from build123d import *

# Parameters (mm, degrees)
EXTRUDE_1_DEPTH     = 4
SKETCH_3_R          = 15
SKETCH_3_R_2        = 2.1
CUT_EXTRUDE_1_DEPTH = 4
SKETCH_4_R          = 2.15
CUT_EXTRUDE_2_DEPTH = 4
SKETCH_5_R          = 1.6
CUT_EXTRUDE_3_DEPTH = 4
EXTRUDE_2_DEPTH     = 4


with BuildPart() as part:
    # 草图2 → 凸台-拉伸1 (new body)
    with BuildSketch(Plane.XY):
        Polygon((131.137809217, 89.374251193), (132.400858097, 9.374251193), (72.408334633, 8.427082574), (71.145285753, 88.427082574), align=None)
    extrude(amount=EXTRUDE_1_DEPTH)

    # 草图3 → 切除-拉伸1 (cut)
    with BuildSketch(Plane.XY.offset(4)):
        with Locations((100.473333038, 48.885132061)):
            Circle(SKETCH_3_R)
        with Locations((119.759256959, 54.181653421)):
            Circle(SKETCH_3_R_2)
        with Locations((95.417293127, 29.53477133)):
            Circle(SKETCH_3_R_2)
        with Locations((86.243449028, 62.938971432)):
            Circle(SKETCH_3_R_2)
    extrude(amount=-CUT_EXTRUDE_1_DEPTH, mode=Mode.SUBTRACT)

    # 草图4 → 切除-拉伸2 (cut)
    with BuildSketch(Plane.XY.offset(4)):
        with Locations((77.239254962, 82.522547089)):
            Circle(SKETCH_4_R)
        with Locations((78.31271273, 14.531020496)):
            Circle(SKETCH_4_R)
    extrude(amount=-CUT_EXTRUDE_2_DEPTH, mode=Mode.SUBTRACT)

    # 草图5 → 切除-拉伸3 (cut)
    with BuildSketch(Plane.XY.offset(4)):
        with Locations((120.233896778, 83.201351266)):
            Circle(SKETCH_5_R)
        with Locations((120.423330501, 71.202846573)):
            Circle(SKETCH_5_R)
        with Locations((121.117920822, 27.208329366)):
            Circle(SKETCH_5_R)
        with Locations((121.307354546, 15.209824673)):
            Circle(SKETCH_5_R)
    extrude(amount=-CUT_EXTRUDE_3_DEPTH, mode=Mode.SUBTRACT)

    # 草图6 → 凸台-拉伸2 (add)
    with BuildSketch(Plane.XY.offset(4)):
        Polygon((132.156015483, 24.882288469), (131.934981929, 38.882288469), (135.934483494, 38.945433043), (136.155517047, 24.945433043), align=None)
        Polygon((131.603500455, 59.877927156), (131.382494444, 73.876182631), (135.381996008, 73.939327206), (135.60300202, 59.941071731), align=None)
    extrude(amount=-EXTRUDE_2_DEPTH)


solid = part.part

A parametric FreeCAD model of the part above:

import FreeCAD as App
import Part
import Sketcher
Q = App.Units.Quantity

doc = App.newDocument("Part")
body = doc.addObject("PartDesign::Body", "Body")

sketch1 = body.newObject("Sketcher::SketchObject", "Sketch")
sketch1.AttachmentSupport = (doc.getObject("XY_Plane"), [""])
sketch1.MapMode = "FlatFace"
sketch1.addGeometry(Part.LineSegment(App.Vector(132.400858, 9.374251, 0), App.Vector(131.137809, 89.374251, 0)), False)
sketch1.addGeometry(Part.LineSegment(App.Vector(131.137809, 89.374251, 0), App.Vector(71.145286, 88.427083, 0)), False)
sketch1.addGeometry(Part.LineSegment(App.Vector(71.145286, 88.427083, 0), App.Vector(72.408335, 8.427083, 0)), False)
sketch1.addGeometry(Part.LineSegment(App.Vector(72.408335, 8.427083, 0), App.Vector(132.400858, 9.374251, 0)), False)
sketch1.addConstraint(Sketcher.Constraint("Coincident", 0, 2, 1, 1))
sketch1.addConstraint(Sketcher.Constraint("Coincident", 1, 2, 2, 1))
sketch1.addConstraint(Sketcher.Constraint("Coincident", 2, 2, 3, 1))
sketch1.addConstraint(Sketcher.Constraint("Coincident", 3, 2, 0, 1))
sketch1.addConstraint(Sketcher.Constraint("Perpendicular", 0, 1))
sketch1.addConstraint(Sketcher.Constraint("Perpendicular", 1, 2))
sketch1.addConstraint(Sketcher.Constraint("Perpendicular", 2, 3))
sketch1.addConstraint(Sketcher.Constraint("Distance", 1, Q("60 mm")))
sketch1.addConstraint(Sketcher.Constraint("DistanceY", 2, 2, 1, 2, Q("80 mm")))
sketch1.addConstraint(Sketcher.Constraint("Distance", 0, Q("80.00997 mm")))
sketch1.addConstraint(Sketcher.Constraint("DistanceX", -1, 1, 0, 2, Q("131.137809 mm")))
sketch1.addConstraint(Sketcher.Constraint("DistanceY", -1, 1, 0, 2, Q("89.374251 mm")))
pad1 = body.newObject("PartDesign::Pad", "Pad")
pad1.Profile = sketch1
pad1.Length = 4

sketch2 = body.newObject("Sketcher::SketchObject", "Sketch001")
sketch2.AttachmentSupport = (doc.getObject("XY_Plane"), [""])
sketch2.MapMode = "FlatFace"
sketch2.AttachmentOffset = App.Placement(App.Vector(0, 0, 4), App.Rotation())
sketch2.addGeometry(Part.Circle(App.Vector(100.473333, 48.885132, 0), App.Vector(0, 0, 1), 15), False)
sketch2.addGeometry(Part.Circle(App.Vector(119.759257, 54.181653, 0), App.Vector(0, 0, 1), 2.1), False)
sketch2.addGeometry(Part.Circle(App.Vector(95.417293, 29.534771, 0), App.Vector(0, 0, 1), 2.1), False)
sketch2.addGeometry(Part.Circle(App.Vector(86.243449, 62.938971, 0), App.Vector(0, 0, 1), 2.1), False)
sketch2.addConstraint(Sketcher.Constraint("Equal", 1, 2))
sketch2.addConstraint(Sketcher.Constraint("Equal", 2, 3))
sketch2.addConstraint(Sketcher.Constraint("Diameter", 0, Q("30 mm")))
sketch2.addConstraint(Sketcher.Constraint("Diameter", 1, Q("4.2 mm")))
sketch2.addConstraint(Sketcher.Constraint("DistanceY", 2, 3, 3, 3, Q("33.4042 mm")))
sketch2.addConstraint(Sketcher.Constraint("DistanceY", -1, 1, 2, 3, Q("29.534771 mm")))
sketch2.addConstraint(Sketcher.Constraint("DistanceX", -1, 1, 3, 3, Q("86.243449 mm")))
sketch2.addConstraint(Sketcher.Constraint("DistanceY", 0, 3, 1, 3, Q("5.296521 mm")))
sketch2.addConstraint(Sketcher.Constraint("DistanceX", 2, 3, 0, 3, Q("5.05604 mm")))
sketch2.addConstraint(Sketcher.Constraint("DistanceY", 2, 3, 0, 3, Q("19.350361 mm")))
sketch2.addConstraint(Sketcher.Constraint("DistanceX", -1, 1, 0, 3, Q("100.473333 mm")))
sketch2.addConstraint(Sketcher.Constraint("DistanceX", -1, 1, 1, 3, Q("119.759257 mm")))
pocket1 = body.newObject("PartDesign::Pocket", "Pocket")
pocket1.Profile = sketch2
pocket1.Length = 4

sketch3 = body.newObject("Sketcher::SketchObject", "Sketch002")
sketch3.AttachmentSupport = (doc.getObject("XY_Plane"), [""])
sketch3.MapMode = "FlatFace"
sketch3.AttachmentOffset = App.Placement(App.Vector(0, 0, 4), App.Rotation())
sketch3.addGeometry(Part.Circle(App.Vector(77.239255, 82.522547, 0), App.Vector(0, 0, 1), 2.15), False)
sketch3.addGeometry(Part.Circle(App.Vector(78.312713, 14.53102, 0), App.Vector(0, 0, 1), 2.15), False)
sketch3.addConstraint(Sketcher.Constraint("Equal", 0, 1))
sketch3.addConstraint(Sketcher.Constraint("Diameter", 0, Q("4.3 mm")))
sketch3.addConstraint(Sketcher.Constraint("DistanceY", -1, 1, 1, 3, Q("14.53102 mm")))
sketch3.addConstraint(Sketcher.Constraint("DistanceX", -1, 1, 0, 3, Q("77.239255 mm")))
sketch3.addConstraint(Sketcher.Constraint("DistanceY", -1, 1, 0, 3, Q("82.522547 mm")))
sketch3.addConstraint(Sketcher.Constraint("DistanceX", -1, 1, 1, 3, Q("78.312713 mm")))
pocket2 = body.newObject("PartDesign::Pocket", "Pocket001")
pocket2.Profile = sketch3
pocket2.Length = 4

sketch4 = body.newObject("Sketcher::SketchObject", "Sketch003")
sketch4.AttachmentSupport = (doc.getObject("XY_Plane"), [""])
sketch4.MapMode = "FlatFace"
sketch4.AttachmentOffset = App.Placement(App.Vector(0, 0, 4), App.Rotation())
sketch4.addGeometry(Part.Circle(App.Vector(120.233897, 83.201351, 0), App.Vector(0, 0, 1), 1.6), False)
sketch4.addGeometry(Part.Circle(App.Vector(120.423331, 71.202847, 0), App.Vector(0, 0, 1), 1.6), False)
sketch4.addGeometry(Part.Circle(App.Vector(121.117921, 27.208329, 0), App.Vector(0, 0, 1), 1.6), False)
sketch4.addGeometry(Part.Circle(App.Vector(121.307355, 15.209825, 0), App.Vector(0, 0, 1), 1.6), False)
sketch4.addConstraint(Sketcher.Constraint("Equal", 0, 1))
sketch4.addConstraint(Sketcher.Constraint("Equal", 1, 2))
sketch4.addConstraint(Sketcher.Constraint("Equal", 2, 3))
sketch4.addConstraint(Sketcher.Constraint("Diameter", 0, Q("3.2 mm")))
sketch4.addConstraint(Sketcher.Constraint("DistanceY", -1, 1, 0, 3, Q("83.201351 mm")))
sketch4.addConstraint(Sketcher.Constraint("DistanceX", -1, 1, 1, 3, Q("120.423331 mm")))
sketch4.addConstraint(Sketcher.Constraint("DistanceX", -1, 1, 2, 3, Q("121.117921 mm")))
sketch4.addConstraint(Sketcher.Constraint("DistanceY", -1, 1, 2, 3, Q("27.208329 mm")))
sketch4.addConstraint(Sketcher.Constraint("DistanceY", 3, 3, 1, 3, Q("55.993022 mm")))
sketch4.addConstraint(Sketcher.Constraint("DistanceX", -1, 1, 0, 3, Q("120.233897 mm")))
sketch4.addConstraint(Sketcher.Constraint("DistanceY", -1, 1, 1, 3, Q("71.202847 mm")))
sketch4.addConstraint(Sketcher.Constraint("DistanceX", -1, 1, 3, 3, Q("121.307355 mm")))
pocket3 = body.newObject("PartDesign::Pocket", "Pocket002")
pocket3.Profile = sketch4
pocket3.Length = 4

sketch5 = body.newObject("Sketcher::SketchObject", "Sketch004")
sketch5.AttachmentSupport = (doc.getObject("XY_Plane"), [""])
sketch5.MapMode = "FlatFace"
sketch5.AttachmentOffset = App.Placement(App.Vector(0, 0, 4), App.Rotation())
sketch5.addGeometry(Part.LineSegment(App.Vector(131.934982, 38.882288, 0), App.Vector(132.156015, 24.882288, 0)), False)
sketch5.addGeometry(Part.LineSegment(App.Vector(132.156015, 24.882288, 0), App.Vector(136.155517, 24.945433, 0)), False)
sketch5.addGeometry(Part.LineSegment(App.Vector(136.155517, 24.945433, 0), App.Vector(135.934483, 38.945433, 0)), False)
sketch5.addGeometry(Part.LineSegment(App.Vector(135.934483, 38.945433, 0), App.Vector(131.934982, 38.882288, 0)), False)
sketch5.addGeometry(Part.LineSegment(App.Vector(131.382494, 73.876183, 0), App.Vector(131.6035, 59.877927, 0)), False)
sketch5.addGeometry(Part.LineSegment(App.Vector(131.6035, 59.877927, 0), App.Vector(135.603002, 59.941072, 0)), False)
sketch5.addGeometry(Part.LineSegment(App.Vector(135.603002, 59.941072, 0), App.Vector(135.381996, 73.939327, 0)), False)
sketch5.addGeometry(Part.LineSegment(App.Vector(135.381996, 73.939327, 0), App.Vector(131.382494, 73.876183, 0)), False)
sketch5.addConstraint(Sketcher.Constraint("Coincident", 0, 2, 1, 1))
sketch5.addConstraint(Sketcher.Constraint("Coincident", 1, 2, 2, 1))
sketch5.addConstraint(Sketcher.Constraint("Coincident", 2, 2, 3, 1))
sketch5.addConstraint(Sketcher.Constraint("Coincident", 3, 2, 0, 1))
sketch5.addConstraint(Sketcher.Constraint("Coincident", 4, 2, 5, 1))
sketch5.addConstraint(Sketcher.Constraint("Coincident", 5, 2, 6, 1))
sketch5.addConstraint(Sketcher.Constraint("Coincident", 6, 2, 7, 1))
sketch5.addConstraint(Sketcher.Constraint("Coincident", 7, 2, 4, 1))
sketch5.addConstraint(Sketcher.Constraint("Perpendicular", 0, 1))
sketch5.addConstraint(Sketcher.Constraint("Perpendicular", 1, 2))
sketch5.addConstraint(Sketcher.Constraint("Perpendicular", 2, 3))
sketch5.addConstraint(Sketcher.Constraint("Perpendicular", 3, 4))
sketch5.addConstraint(Sketcher.Constraint("Perpendicular", 4, 5))
sketch5.addConstraint(Sketcher.Constraint("Perpendicular", 5, 6))
sketch5.addConstraint(Sketcher.Constraint("Perpendicular", 6, 7))
sketch5.addConstraint(Sketcher.Constraint("Equal", 3, 5))
sketch5.addConstraint(Sketcher.Constraint("Distance", 1, Q("4 mm")))
sketch5.addConstraint(Sketcher.Constraint("Distance", 4, Q("14 mm")))
sketch5.addConstraint(Sketcher.Constraint("DistanceY", 1, 2, 2, 2, Q("14 mm")))
sketch5.addConstraint(Sketcher.Constraint("DistanceX", -1, 1, 4, 2, Q("131.6035 mm")))
sketch5.addConstraint(Sketcher.Constraint("DistanceY", 4, 2, 6, 2, Q("14.0614 mm")))
sketch5.addConstraint(Sketcher.Constraint("DistanceY", -1, 1, 0, 2, Q("24.882288 mm")))
sketch5.addConstraint(Sketcher.Constraint("DistanceX", -1, 1, 3, 2, Q("131.934982 mm")))
sketch5.addConstraint(Sketcher.Constraint("DistanceY", -1, 1, 5, 2, Q("59.941072 mm")))
pad2 = body.newObject("PartDesign::Pad", "Pad001")
pad2.Profile = sketch5
pad2.Length = 4
pad2.Reversed = True

doc.recompute()
